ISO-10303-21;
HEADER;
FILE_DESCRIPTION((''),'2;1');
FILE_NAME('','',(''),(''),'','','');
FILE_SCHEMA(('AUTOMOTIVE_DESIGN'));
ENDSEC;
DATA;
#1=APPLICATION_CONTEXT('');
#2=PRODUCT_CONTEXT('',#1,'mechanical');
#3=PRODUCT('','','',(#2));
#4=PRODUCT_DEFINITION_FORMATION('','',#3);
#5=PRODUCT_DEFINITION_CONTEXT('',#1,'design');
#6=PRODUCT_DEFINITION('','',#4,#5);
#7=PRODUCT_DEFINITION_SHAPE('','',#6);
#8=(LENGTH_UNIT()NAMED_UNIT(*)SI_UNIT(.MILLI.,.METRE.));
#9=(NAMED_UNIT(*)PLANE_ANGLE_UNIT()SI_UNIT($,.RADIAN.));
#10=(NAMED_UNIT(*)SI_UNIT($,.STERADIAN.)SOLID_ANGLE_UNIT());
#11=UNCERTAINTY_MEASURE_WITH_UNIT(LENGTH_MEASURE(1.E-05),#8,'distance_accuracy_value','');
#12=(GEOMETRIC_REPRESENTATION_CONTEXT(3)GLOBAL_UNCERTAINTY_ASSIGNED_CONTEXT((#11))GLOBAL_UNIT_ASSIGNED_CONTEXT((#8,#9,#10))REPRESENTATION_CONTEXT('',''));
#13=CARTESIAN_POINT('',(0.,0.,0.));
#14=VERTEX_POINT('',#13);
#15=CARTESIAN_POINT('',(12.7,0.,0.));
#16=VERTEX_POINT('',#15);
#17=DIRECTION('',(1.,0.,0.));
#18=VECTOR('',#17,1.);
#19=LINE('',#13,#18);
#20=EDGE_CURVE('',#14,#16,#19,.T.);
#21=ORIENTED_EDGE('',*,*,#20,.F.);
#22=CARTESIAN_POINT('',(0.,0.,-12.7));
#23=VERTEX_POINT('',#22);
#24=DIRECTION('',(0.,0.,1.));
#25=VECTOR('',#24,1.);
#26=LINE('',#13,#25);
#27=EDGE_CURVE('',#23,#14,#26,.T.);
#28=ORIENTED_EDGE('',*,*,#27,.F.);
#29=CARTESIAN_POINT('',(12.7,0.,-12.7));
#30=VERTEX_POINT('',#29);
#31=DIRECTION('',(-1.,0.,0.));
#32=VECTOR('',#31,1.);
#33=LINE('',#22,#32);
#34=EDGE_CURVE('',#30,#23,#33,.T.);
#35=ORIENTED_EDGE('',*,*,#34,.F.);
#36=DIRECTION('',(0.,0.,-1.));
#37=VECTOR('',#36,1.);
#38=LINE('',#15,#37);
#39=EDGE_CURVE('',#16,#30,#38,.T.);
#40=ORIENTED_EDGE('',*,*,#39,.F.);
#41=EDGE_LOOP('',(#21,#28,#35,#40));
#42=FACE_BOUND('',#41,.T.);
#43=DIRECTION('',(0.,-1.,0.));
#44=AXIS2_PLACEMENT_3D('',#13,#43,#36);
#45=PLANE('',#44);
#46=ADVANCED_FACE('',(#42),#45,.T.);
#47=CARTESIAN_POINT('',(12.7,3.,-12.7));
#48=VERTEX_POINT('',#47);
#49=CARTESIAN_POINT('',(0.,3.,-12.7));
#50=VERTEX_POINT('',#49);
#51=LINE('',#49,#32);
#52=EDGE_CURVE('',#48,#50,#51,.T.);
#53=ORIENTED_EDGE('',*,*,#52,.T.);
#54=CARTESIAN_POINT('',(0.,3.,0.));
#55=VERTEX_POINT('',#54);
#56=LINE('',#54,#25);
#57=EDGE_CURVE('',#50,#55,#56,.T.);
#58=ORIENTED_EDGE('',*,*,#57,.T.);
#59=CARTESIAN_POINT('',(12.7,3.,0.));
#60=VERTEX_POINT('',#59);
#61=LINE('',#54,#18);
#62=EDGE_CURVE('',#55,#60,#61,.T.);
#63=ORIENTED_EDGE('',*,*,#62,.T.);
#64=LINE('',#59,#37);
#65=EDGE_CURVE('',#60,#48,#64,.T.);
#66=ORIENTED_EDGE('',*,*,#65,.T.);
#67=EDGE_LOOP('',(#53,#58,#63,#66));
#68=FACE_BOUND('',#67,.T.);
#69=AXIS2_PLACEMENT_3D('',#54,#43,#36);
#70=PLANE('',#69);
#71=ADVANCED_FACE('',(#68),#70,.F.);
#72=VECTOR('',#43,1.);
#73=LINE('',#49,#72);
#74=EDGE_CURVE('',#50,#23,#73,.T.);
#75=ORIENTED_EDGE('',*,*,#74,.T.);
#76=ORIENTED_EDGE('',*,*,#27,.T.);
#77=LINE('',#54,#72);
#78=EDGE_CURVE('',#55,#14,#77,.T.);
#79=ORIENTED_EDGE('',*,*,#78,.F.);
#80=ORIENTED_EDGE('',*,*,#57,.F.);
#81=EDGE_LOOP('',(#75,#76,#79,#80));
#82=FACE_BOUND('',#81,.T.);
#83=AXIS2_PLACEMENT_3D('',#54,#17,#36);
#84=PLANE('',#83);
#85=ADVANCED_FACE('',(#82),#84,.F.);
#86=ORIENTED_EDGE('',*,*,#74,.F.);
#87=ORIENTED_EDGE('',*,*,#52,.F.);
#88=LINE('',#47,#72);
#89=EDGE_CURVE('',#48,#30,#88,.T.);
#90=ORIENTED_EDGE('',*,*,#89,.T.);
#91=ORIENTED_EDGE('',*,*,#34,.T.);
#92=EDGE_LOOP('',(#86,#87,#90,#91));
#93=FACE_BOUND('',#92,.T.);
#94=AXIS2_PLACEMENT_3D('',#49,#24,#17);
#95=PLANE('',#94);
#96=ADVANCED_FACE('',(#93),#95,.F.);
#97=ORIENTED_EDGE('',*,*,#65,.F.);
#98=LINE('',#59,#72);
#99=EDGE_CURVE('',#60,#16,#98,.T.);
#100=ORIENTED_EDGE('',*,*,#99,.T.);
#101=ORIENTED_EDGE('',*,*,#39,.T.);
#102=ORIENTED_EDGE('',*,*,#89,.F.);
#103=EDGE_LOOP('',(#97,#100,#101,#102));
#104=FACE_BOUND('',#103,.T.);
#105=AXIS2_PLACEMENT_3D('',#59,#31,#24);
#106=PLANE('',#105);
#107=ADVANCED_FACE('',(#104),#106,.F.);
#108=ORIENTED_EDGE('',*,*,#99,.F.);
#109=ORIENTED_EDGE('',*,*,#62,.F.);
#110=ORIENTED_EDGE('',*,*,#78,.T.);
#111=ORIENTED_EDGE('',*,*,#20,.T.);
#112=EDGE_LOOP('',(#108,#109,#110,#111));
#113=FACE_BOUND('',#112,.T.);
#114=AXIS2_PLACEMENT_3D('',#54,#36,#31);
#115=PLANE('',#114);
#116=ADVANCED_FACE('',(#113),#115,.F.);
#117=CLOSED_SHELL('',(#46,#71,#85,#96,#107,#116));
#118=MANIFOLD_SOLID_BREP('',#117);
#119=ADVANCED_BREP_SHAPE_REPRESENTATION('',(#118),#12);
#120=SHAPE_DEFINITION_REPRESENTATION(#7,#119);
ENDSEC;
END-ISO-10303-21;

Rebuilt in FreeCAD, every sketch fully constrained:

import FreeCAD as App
import Part
import Sketcher

V = App.Vector


def add_polygon(sketch, points):
    """Adds a closed chain of lines whose ends are joined by coincident constraints."""
    first, n = sketch.GeometryCount, len(points)
    for a, b in zip(points, points[1:] + points[:1]):
        sketch.addGeometry(Part.LineSegment(App.Vector(*a, 0), App.Vector(*b, 0)), False)
    for i in range(n):
        sketch.addConstraint(Sketcher.Constraint("Coincident", first + i, 2, first + (i + 1) % n, 1))

doc = App.newDocument("Part")
body = doc.addObject("PartDesign::Body", "Body")

sketch1 = body.newObject("Sketcher::SketchObject", "Sketch")
sketch1.AttachmentSupport = (doc.getObject("XZ_Plane"), [""])
sketch1.MapMode = "FlatFace"
add_polygon(sketch1, [(0, -13), (0, 0), (13, 0), (13, -13)])
sketch1.addConstraint(Sketcher.Constraint("Vertical", 0))
sketch1.addConstraint(Sketcher.Constraint("Horizontal", 1))
sketch1.addConstraint(Sketcher.Constraint("Vertical", 2))
sketch1.addConstraint(Sketcher.Constraint("Horizontal", 3))
sketch1.addConstraint(Sketcher.Constraint("Coincident", 0, 2, -1, 1))
sketch1.addConstraint(Sketcher.Constraint("Equal", 3, 0))
sketch1.addConstraint(Sketcher.Constraint("DistanceX", 1, 1, 1, 2, 12.7))
pad1 = body.newObject("PartDesign::Pad", "Pad")
pad1.Profile = sketch1
pad1.Length = 3
pad1.Reversed = True

doc.recompute()
